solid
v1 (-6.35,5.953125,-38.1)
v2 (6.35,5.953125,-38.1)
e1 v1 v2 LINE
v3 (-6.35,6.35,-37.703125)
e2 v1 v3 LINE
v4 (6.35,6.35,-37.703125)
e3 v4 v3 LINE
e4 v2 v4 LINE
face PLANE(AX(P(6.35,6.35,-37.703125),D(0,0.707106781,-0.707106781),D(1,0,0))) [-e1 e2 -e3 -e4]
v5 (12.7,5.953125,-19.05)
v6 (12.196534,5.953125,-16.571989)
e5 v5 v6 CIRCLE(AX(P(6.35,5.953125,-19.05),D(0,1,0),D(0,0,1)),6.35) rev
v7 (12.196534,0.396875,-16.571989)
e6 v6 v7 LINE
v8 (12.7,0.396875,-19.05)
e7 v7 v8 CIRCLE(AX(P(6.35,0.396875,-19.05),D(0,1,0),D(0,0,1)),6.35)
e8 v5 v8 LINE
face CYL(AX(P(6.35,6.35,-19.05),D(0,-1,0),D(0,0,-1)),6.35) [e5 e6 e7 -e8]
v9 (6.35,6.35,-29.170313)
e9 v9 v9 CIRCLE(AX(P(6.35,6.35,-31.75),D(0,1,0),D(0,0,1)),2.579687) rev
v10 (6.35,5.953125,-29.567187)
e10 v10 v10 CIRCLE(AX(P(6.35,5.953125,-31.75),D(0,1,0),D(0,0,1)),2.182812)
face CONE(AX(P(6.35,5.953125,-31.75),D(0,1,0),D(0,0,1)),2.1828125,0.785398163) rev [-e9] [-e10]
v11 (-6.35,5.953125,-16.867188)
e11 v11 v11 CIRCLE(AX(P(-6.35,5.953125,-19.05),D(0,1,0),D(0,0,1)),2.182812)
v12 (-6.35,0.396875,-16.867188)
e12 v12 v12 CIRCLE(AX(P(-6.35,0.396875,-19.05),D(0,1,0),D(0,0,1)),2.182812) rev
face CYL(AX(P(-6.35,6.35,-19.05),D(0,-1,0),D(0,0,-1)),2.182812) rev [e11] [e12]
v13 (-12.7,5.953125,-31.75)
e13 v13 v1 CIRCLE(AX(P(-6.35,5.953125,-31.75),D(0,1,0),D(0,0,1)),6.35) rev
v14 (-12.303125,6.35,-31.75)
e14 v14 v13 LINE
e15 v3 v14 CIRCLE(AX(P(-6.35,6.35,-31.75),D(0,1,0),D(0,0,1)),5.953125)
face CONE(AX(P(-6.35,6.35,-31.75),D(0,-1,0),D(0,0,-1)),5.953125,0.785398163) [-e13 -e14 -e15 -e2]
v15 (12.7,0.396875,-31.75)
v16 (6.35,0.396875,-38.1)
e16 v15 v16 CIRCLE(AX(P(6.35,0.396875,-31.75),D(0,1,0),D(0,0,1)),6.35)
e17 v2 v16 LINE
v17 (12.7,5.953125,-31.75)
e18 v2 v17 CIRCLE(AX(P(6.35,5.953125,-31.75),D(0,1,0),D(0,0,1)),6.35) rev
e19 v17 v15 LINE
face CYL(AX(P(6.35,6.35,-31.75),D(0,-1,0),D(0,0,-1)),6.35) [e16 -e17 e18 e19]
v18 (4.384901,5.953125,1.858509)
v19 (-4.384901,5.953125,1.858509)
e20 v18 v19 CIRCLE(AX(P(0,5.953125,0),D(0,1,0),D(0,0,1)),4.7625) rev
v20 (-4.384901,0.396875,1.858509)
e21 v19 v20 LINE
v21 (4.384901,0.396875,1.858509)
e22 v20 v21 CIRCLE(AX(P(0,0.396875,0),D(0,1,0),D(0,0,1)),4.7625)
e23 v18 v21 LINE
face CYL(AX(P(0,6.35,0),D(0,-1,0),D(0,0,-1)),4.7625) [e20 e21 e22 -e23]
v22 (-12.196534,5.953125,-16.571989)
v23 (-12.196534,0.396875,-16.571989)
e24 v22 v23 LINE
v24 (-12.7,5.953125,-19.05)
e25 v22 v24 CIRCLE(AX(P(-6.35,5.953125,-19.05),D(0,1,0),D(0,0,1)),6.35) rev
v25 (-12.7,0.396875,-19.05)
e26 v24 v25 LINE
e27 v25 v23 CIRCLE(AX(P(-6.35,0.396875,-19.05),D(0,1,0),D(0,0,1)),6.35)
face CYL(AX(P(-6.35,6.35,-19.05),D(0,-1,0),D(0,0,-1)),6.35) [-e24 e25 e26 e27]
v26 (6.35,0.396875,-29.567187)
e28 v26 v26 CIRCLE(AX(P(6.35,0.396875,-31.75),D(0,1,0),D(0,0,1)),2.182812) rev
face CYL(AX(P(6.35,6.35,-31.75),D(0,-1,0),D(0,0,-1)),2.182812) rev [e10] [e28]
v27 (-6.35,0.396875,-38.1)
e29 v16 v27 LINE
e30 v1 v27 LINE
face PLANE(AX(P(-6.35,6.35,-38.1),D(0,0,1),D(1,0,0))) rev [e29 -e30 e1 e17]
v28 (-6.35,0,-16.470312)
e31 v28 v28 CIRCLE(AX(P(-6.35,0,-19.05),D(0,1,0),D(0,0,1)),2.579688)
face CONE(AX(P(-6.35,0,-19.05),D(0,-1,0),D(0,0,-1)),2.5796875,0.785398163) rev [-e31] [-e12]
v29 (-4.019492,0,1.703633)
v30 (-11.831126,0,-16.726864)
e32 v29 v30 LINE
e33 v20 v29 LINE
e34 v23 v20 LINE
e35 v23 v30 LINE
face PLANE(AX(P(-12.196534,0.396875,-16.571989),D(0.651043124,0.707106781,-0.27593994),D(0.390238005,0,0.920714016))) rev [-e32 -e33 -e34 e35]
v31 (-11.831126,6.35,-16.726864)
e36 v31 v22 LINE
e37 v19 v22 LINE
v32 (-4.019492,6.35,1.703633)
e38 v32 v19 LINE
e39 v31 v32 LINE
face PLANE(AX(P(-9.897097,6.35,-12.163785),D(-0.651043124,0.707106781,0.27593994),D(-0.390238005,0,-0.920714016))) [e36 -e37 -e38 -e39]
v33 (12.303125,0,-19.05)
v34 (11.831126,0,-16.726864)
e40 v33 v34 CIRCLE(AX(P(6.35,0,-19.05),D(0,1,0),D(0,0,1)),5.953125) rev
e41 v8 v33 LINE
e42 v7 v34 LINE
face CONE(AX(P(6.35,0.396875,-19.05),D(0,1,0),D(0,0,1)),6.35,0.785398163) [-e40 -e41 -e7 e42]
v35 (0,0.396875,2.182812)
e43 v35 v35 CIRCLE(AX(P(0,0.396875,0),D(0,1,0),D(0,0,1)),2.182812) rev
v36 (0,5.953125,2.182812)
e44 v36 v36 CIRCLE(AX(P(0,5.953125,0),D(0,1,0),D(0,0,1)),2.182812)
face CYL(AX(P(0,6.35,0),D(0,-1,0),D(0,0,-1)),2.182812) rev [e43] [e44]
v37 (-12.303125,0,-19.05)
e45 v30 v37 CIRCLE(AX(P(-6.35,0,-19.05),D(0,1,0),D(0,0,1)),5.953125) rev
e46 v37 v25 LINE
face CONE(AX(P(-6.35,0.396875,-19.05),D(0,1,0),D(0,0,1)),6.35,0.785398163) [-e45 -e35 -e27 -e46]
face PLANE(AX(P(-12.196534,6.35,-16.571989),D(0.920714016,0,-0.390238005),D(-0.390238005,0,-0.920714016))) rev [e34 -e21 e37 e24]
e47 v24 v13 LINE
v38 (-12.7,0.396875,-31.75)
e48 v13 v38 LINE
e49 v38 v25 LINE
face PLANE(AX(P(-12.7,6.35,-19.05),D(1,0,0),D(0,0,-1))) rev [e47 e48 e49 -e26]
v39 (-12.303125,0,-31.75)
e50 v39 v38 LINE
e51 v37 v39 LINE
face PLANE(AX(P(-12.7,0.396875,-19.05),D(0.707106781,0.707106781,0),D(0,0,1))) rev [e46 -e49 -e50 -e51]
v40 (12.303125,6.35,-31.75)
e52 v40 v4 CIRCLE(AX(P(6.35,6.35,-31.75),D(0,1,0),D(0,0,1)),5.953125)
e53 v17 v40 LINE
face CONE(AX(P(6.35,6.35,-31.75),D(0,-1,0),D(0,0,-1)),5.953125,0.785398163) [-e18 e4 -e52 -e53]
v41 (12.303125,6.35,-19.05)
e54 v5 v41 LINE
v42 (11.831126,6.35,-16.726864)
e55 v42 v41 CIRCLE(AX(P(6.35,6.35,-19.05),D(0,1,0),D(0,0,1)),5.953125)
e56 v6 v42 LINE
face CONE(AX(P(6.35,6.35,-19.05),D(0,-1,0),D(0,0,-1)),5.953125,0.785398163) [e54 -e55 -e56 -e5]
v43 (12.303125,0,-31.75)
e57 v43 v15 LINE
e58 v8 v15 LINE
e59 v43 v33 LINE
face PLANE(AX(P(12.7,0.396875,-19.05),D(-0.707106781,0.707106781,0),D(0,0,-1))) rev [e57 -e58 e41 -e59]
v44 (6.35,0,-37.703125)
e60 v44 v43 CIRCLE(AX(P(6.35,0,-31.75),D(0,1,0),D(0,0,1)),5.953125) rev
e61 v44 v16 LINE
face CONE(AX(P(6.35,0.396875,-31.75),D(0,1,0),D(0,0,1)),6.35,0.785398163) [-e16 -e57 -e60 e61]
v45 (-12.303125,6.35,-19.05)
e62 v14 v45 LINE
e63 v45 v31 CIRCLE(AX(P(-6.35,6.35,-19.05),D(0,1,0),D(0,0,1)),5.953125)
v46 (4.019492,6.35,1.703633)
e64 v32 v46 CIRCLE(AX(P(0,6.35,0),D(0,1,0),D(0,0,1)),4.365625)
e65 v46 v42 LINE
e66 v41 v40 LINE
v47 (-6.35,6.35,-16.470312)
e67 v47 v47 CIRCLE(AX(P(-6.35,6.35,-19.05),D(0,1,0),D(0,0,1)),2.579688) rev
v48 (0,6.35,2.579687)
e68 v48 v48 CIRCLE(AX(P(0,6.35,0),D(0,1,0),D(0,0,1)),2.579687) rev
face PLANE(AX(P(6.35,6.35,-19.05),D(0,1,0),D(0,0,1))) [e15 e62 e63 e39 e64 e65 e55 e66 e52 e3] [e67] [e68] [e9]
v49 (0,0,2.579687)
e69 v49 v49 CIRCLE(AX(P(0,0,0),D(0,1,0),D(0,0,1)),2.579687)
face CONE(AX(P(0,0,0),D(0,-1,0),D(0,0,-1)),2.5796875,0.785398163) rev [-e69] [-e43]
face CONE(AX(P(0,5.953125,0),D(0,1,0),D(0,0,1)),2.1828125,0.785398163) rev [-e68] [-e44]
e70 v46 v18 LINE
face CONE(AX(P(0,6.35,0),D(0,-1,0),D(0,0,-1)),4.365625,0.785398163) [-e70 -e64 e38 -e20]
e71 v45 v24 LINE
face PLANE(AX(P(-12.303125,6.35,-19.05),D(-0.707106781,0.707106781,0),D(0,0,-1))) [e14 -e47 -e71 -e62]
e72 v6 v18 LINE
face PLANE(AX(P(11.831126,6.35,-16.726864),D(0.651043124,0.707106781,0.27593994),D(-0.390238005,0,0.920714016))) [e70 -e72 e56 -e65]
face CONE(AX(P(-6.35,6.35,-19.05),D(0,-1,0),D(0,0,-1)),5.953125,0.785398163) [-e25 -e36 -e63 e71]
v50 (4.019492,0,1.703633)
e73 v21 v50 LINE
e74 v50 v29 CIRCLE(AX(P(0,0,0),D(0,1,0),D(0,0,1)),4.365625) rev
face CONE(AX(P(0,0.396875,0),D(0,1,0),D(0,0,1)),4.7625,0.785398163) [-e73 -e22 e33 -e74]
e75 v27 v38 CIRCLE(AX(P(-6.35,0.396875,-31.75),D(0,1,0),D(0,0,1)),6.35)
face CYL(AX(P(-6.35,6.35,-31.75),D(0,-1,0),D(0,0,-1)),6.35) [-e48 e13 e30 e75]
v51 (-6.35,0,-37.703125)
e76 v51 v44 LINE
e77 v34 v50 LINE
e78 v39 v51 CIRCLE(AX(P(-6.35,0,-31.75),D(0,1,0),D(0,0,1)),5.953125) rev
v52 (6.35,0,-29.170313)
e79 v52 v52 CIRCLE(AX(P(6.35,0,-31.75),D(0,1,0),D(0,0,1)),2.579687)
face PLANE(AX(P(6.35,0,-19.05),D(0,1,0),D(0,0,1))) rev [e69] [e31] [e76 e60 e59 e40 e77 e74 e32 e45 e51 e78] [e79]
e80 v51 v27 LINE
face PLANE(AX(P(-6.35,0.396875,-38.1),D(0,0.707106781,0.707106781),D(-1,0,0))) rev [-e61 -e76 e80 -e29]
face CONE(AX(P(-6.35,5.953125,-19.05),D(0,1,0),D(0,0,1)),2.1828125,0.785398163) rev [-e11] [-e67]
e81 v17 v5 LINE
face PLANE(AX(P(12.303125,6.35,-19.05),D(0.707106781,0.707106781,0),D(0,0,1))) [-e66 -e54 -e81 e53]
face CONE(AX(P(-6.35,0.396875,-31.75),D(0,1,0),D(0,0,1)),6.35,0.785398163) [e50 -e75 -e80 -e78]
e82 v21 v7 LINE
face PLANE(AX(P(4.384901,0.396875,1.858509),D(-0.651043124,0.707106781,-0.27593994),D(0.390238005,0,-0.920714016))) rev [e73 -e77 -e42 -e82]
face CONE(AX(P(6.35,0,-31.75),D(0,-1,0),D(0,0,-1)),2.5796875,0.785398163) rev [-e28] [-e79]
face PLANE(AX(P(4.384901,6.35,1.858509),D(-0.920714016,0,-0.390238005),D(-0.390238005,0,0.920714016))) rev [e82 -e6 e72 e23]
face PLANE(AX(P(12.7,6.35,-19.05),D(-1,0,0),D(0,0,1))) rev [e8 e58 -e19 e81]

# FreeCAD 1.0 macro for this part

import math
import FreeCAD as App
import Part
import Sketcher
Q = App.Units.Quantity


def edges_at(feature, points):
    """Names of the edges that pass closest to the given points."""
    edges = feature.Shape.Edges
    near = lambda p: min(range(len(edges)), key=lambda i: edges[i].distToShape(Part.Vertex(*p))[0])
    return sorted({f"Edge{near(p) + 1}" for p in points})

doc = App.newDocument("Part")
body = doc.addObject("PartDesign::Body", "Body")

sketch1 = body.newObject("Sketcher::SketchObject", "Sketch")
sketch1.AttachmentSupport = (doc.getObject("XZ_Plane"), [""])
sketch1.MapMode = "FlatFace"
sketch1.addGeometry(Part.LineSegment(App.Vector(-12.7, -31.8, 0), App.Vector(-12.7, -19.1, 0)), False)
sketch1.addGeometry(Part.ArcOfCircle(Part.Circle(App.Vector(-6.4, -19, 0), App.Vector(0, 0, 1), 6.3), math.radians(157), math.radians(180)), False)
sketch1.addGeometry(Part.LineSegment(App.Vector(-12.2, -16.6, 0), App.Vector(-4.4, 1.9, 0)), False)
sketch1.addGeometry(Part.ArcOfCircle(Part.Circle(App.Vector(0, 0, 0), App.Vector(0, 0, 1), 4.8), math.radians(23), math.radians(157)), False)
sketch1.addGeometry(Part.LineSegment(App.Vector(4.4, 1.9, 0), App.Vector(12.2, -16.6, 0)), False)
sketch1.addGeometry(Part.ArcOfCircle(Part.Circle(App.Vector(6.4, -19, 0), App.Vector(0, 0, 1), 6.3), math.radians(0), math.radians(23)), False)
sketch1.addGeometry(Part.LineSegment(App.Vector(12.7, -19.1, 0), App.Vector(12.7, -31.8, 0)), False)
sketch1.addGeometry(Part.ArcOfCircle(Part.Circle(App.Vector(6.4, -31.8, 0), App.Vector(0, 0, 1), 6.3), math.radians(-90), math.radians(0)), False)
sketch1.addGeometry(Part.LineSegment(App.Vector(6.3, -38.1, 0), App.Vector(-6.3, -38.1, 0)), False)
sketch1.addGeometry(Part.ArcOfCircle(Part.Circle(App.Vector(-6.4, -31.8, 0), App.Vector(0, 0, 1), 6.3), math.radians(180), math.radians(270)), False)
sketch1.addGeometry(Part.Circle(App.Vector(0, 0, 0), App.Vector(0, 0, 1), 2.2), False)
sketch1.addGeometry(Part.Circle(App.Vector(6.3, -31.8, 0), App.Vector(0, 0, 1), 2.2), False)
sketch1.addGeometry(Part.Circle(App.Vector(-6.3, -19.1, 0), App.Vector(0, 0, 1), 2.2), False)
sketch1.addConstraint(Sketcher.Constraint("Tangent", 0, 2, 1, 2))
sketch1.addConstraint(Sketcher.Constraint("Tangent", 1, 1, 2, 1))
sketch1.addConstraint(Sketcher.Constraint("Tangent", 2, 2, 3, 2))
sketch1.addConstraint(Sketcher.Constraint("Tangent", 3, 1, 4, 1))
sketch1.addConstraint(Sketcher.Constraint("Tangent", 4, 2, 5, 2))
sketch1.addConstraint(Sketcher.Constraint("Tangent", 5, 1, 6, 1))
sketch1.addConstraint(Sketcher.Constraint("Tangent", 6, 2, 7, 2))
sketch1.addConstraint(Sketcher.Constraint("Tangent", 7, 1, 8, 1))
sketch1.addConstraint(Sketcher.Constraint("Tangent", 8, 2, 9, 2))
sketch1.addConstraint(Sketcher.Constraint("Tangent", 9, 1, 0, 1))
sketch1.addConstraint(Sketcher.Constraint("Vertical", 0))
sketch1.addConstraint(Sketcher.Constraint("Vertical", 6))
sketch1.addConstraint(Sketcher.Constraint("Horizontal", 8))
sketch1.addConstraint(Sketcher.Constraint("Coincident", 3, 3, -1, 1))
sketch1.addConstraint(Sketcher.Constraint("Coincident", 10, 3, -1, 1))
sketch1.addConstraint(Sketcher.Constraint("Coincident", 11, 3, 7, 3))
sketch1.addConstraint(Sketcher.Constraint("Coincident", 12, 3, 1, 3))
sketch1.addConstraint(Sketcher.Constraint("Equal", 1, 5))
sketch1.addConstraint(Sketcher.Constraint("Equal", 5, 7))
sketch1.addConstraint(Sketcher.Constraint("Equal", 7, 9))
sketch1.addConstraint(Sketcher.Constraint("Equal", 10, 11))
sketch1.addConstraint(Sketcher.Constraint("Equal", 11, 12))
sketch1.addConstraint(Sketcher.Constraint("Symmetric", 1, 3, 5, 3, -2))
sketch1.addConstraint(Sketcher.Constraint("Equal", 8, 0))
sketch1.addConstraint(Sketcher.Constraint("Radius", 1, Q("0.25 in")))
sketch1.addConstraint(Sketcher.Constraint("Diameter", 10, Q("0.171875 in")))
sketch1.addConstraint(Sketcher.Constraint("DistanceX", 8, 2, 8, 1, Q("0.5 in")))
sketch1.addConstraint(Sketcher.Constraint("Radius", 3, Q("0.1875 in")))
sketch1.addConstraint(Sketcher.Constraint("DistanceY", 7, 1, -1, 1, Q("1.5 in")))
pad1 = body.newObject("PartDesign::Pad", "Pad")
pad1.Profile = sketch1
pad1.Length = Q("0.25 in")
pad1.Reversed = True
doc.recompute()

chamfer = body.newObject("PartDesign::Chamfer", "Chamfer")
chamfer.Base = (pad1, edges_at(pad1, [
    (8.291, 0, -7.357),
    (0, 0, 4.763),
    (-8.291, 0, -7.357),
    (-12.573, 0, -17.786),
    (-12.7, 0, -25.4),
    (-10.84, 0, -36.24),
    (0, 0, -38.1),
    (10.84, 6.35, -36.24),
    (10.84, 0, -36.24),
    (12.7, 0, -25.4),
    (12.573, 0, -17.786),
    (0, 6.35, -38.1),
    (-10.84, 6.35, -36.24),
    (-12.7, 6.35, -25.4),
    (-2.183, 0, 0),
    (-2.183, 6.35, 0),
    (-12.573, 6.35, -17.786),
    (4.167, 0, -31.75),
    (4.167, 6.35, -31.75),
    (-8.291, 6.35, -7.357),
    (-8.533, 0, -19.05),
    (-8.533, 6.35, -19.05),
    (0, 6.35, 4.763),
    (8.291, 6.35, -7.357),
    (12.573, 6.35, -17.786),
    (12.7, 6.35, -25.4),
]))
chamfer.Size = Q("0.015625 in")

doc.recompute()
